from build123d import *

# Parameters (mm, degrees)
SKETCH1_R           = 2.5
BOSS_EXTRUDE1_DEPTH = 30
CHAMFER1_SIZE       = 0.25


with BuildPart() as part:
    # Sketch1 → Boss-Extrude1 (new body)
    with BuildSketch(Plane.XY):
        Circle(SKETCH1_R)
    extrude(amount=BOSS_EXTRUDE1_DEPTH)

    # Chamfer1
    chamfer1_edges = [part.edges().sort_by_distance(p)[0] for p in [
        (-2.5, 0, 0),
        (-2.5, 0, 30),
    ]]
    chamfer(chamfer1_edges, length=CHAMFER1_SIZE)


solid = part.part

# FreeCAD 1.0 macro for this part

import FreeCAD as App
import Part
import Sketcher
Q = App.Units.Quantity


def edges_at(feature, points):
    """Names of the edges that pass closest to the given points."""
    edges = feature.Shape.Edges
    near = lambda p: min(range(len(edges)), key=lambda i: edges[i].distToShape(Part.Vertex(*p))[0])
    return sorted({f"Edge{near(p) + 1}" for p in points})

doc = App.newDocument("Part")
params = doc.addObject("Spreadsheet::Sheet", "Params")
for row, (alias, value) in enumerate([
    ("sketch1_diameter", "5 mm"),
    ("pad1_length", "30 mm"),
    ("chamfer_size", "0.25 mm"),
], start=1):
    params.set(f"A{row}", alias)
    params.set(f"B{row}", "=" + value)
    params.setAlias(f"B{row}", alias)

body = doc.addObject("PartDesign::Body", "Body")

sketch1 = body.newObject("Sketcher::SketchObject", "Sketch")
sketch1.AttachmentSupport = (doc.getObject("XY_Plane"), [""])
sketch1.MapMode = "FlatFace"
sketch1.addGeometry(Part.Circle(App.Vector(0, 0, 0), App.Vector(0, 0, 1), 2.5), False)
sketch1.addConstraint(Sketcher.Constraint("Coincident", 0, 3, -1, 1))
sketch1.addConstraint(Sketcher.Constraint("Diameter", 0, Q("5 mm")))
sketch1.setExpression("Constraints[1]", "Params.sketch1_diameter")
pad1 = body.newObject("PartDesign::Pad", "Pad")
pad1.Profile = sketch1
pad1.setExpression("Length", "Params.pad1_length")
doc.recompute()

chamfer = body.newObject("PartDesign::Chamfer", "Chamfer")
chamfer.Base = (pad1, edges_at(pad1, [(-2.5, 0, 0), (-2.5, 0, 30)]))
chamfer.setExpression("Size", "Params.chamfer_size")

doc.recompute()
